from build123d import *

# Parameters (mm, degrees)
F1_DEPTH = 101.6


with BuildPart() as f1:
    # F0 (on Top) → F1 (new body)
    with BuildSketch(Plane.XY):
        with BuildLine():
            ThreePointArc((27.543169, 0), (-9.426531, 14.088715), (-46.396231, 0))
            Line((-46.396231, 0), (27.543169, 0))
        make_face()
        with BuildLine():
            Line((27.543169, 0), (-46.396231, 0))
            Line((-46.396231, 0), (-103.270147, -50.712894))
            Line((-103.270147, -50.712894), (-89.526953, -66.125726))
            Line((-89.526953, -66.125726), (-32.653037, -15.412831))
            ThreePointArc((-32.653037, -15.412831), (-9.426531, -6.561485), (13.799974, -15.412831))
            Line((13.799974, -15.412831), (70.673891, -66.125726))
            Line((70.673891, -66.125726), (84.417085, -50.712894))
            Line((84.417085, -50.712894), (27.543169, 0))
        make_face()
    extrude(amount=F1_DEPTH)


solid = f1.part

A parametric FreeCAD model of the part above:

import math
import FreeCAD as App
import Part
import Sketcher
from FreeCAD import Vector
Q = App.Units.Quantity

doc = App.newDocument("Part")
body = doc.addObject("PartDesign::Body", "Body")

sketch1 = body.newObject("Sketcher::SketchObject", "Sketch")
sketch1.AttachmentSupport = (doc.getObject("XY_Plane"), [""])
sketch1.MapMode = "FlatFace"
sketch1.addGeometry(Part.ArcOfCircle(Part.Circle(Vector(-9, -41, 0), Vector(0, 0, 1), 56), math.radians(48), math.radians(132)), False)
sketch1.addGeometry(Part.LineSegment(Vector(-46, 0, 0), Vector(-103, -51, 0)), False)
sketch1.addGeometry(Part.LineSegment(Vector(-103, -51, 0), Vector(-90, -66, 0)), False)
sketch1.addGeometry(Part.LineSegment(Vector(-90, -66, 0), Vector(-33, -15, 0)), False)
sketch1.addGeometry(Part.ArcOfCircle(Part.Circle(Vector(-9, -41, 0), Vector(0, 0, 1), 35), math.radians(48), math.radians(132)), False)
sketch1.addGeometry(Part.LineSegment(Vector(14, -15, 0), Vector(71, -66, 0)), False)
sketch1.addGeometry(Part.LineSegment(Vector(71, -66, 0), Vector(84, -51, 0)), False)
sketch1.addGeometry(Part.LineSegment(Vector(84, -51, 0), Vector(28, 0, 0)), False)
sketch1.addConstraint(Sketcher.Constraint("Tangent", 0, 2, 1, 1))
sketch1.addConstraint(Sketcher.Constraint("Coincident", 1, 2, 2, 1))
sketch1.addConstraint(Sketcher.Constraint("Coincident", 2, 2, 3, 1))
sketch1.addConstraint(Sketcher.Constraint("Tangent", 3, 2, 4, 2))
sketch1.addConstraint(Sketcher.Constraint("Tangent", 4, 1, 5, 1))
sketch1.addConstraint(Sketcher.Constraint("Coincident", 5, 2, 6, 1))
sketch1.addConstraint(Sketcher.Constraint("Coincident", 6, 2, 7, 1))
sketch1.addConstraint(Sketcher.Constraint("Tangent", 7, 2, 0, 1))
sketch1.addConstraint(Sketcher.Constraint("Coincident", 4, 3, 0, 3))
sketch1.addConstraint(Sketcher.Constraint("PointOnObject", 0, 2, -1))
sketch1.addConstraint(Sketcher.Constraint("PointOnObject", 7, 2, -1))
sketch1.addConstraint(Sketcher.Constraint("Perpendicular", 1, 2))
sketch1.addConstraint(Sketcher.Constraint("Perpendicular", 2, 3))
sketch1.addConstraint(Sketcher.Constraint("Perpendicular", 5, 6))
sketch1.addConstraint(Sketcher.Constraint("Perpendicular", 6, 7))
sketch1.addConstraint(Sketcher.Constraint("Horizontal", 2, 2, 5, 2))
sketch1.addConstraint(Sketcher.Constraint("Distance", 1, Q("3 in")))
sketch1.addConstraint(Sketcher.Constraint("Radius", 0, Q("2.187 in")))
sketch1.addConstraint(Sketcher.Constraint("Radius", 4, Q("1.374 in")))
sketch1.addConstraint(Sketcher.Constraint("DistanceX", 0, 2, 7, 2, Q("2.911 in")))
sketch1.addConstraint(Sketcher.Constraint("DistanceX", 0, 3, -1, 1, Q("9.426531 mm")))
pad1 = body.newObject("PartDesign::Pad", "Pad")
pad1.Profile = sketch1
pad1.Length = Q("4 in")

doc.recompute()
